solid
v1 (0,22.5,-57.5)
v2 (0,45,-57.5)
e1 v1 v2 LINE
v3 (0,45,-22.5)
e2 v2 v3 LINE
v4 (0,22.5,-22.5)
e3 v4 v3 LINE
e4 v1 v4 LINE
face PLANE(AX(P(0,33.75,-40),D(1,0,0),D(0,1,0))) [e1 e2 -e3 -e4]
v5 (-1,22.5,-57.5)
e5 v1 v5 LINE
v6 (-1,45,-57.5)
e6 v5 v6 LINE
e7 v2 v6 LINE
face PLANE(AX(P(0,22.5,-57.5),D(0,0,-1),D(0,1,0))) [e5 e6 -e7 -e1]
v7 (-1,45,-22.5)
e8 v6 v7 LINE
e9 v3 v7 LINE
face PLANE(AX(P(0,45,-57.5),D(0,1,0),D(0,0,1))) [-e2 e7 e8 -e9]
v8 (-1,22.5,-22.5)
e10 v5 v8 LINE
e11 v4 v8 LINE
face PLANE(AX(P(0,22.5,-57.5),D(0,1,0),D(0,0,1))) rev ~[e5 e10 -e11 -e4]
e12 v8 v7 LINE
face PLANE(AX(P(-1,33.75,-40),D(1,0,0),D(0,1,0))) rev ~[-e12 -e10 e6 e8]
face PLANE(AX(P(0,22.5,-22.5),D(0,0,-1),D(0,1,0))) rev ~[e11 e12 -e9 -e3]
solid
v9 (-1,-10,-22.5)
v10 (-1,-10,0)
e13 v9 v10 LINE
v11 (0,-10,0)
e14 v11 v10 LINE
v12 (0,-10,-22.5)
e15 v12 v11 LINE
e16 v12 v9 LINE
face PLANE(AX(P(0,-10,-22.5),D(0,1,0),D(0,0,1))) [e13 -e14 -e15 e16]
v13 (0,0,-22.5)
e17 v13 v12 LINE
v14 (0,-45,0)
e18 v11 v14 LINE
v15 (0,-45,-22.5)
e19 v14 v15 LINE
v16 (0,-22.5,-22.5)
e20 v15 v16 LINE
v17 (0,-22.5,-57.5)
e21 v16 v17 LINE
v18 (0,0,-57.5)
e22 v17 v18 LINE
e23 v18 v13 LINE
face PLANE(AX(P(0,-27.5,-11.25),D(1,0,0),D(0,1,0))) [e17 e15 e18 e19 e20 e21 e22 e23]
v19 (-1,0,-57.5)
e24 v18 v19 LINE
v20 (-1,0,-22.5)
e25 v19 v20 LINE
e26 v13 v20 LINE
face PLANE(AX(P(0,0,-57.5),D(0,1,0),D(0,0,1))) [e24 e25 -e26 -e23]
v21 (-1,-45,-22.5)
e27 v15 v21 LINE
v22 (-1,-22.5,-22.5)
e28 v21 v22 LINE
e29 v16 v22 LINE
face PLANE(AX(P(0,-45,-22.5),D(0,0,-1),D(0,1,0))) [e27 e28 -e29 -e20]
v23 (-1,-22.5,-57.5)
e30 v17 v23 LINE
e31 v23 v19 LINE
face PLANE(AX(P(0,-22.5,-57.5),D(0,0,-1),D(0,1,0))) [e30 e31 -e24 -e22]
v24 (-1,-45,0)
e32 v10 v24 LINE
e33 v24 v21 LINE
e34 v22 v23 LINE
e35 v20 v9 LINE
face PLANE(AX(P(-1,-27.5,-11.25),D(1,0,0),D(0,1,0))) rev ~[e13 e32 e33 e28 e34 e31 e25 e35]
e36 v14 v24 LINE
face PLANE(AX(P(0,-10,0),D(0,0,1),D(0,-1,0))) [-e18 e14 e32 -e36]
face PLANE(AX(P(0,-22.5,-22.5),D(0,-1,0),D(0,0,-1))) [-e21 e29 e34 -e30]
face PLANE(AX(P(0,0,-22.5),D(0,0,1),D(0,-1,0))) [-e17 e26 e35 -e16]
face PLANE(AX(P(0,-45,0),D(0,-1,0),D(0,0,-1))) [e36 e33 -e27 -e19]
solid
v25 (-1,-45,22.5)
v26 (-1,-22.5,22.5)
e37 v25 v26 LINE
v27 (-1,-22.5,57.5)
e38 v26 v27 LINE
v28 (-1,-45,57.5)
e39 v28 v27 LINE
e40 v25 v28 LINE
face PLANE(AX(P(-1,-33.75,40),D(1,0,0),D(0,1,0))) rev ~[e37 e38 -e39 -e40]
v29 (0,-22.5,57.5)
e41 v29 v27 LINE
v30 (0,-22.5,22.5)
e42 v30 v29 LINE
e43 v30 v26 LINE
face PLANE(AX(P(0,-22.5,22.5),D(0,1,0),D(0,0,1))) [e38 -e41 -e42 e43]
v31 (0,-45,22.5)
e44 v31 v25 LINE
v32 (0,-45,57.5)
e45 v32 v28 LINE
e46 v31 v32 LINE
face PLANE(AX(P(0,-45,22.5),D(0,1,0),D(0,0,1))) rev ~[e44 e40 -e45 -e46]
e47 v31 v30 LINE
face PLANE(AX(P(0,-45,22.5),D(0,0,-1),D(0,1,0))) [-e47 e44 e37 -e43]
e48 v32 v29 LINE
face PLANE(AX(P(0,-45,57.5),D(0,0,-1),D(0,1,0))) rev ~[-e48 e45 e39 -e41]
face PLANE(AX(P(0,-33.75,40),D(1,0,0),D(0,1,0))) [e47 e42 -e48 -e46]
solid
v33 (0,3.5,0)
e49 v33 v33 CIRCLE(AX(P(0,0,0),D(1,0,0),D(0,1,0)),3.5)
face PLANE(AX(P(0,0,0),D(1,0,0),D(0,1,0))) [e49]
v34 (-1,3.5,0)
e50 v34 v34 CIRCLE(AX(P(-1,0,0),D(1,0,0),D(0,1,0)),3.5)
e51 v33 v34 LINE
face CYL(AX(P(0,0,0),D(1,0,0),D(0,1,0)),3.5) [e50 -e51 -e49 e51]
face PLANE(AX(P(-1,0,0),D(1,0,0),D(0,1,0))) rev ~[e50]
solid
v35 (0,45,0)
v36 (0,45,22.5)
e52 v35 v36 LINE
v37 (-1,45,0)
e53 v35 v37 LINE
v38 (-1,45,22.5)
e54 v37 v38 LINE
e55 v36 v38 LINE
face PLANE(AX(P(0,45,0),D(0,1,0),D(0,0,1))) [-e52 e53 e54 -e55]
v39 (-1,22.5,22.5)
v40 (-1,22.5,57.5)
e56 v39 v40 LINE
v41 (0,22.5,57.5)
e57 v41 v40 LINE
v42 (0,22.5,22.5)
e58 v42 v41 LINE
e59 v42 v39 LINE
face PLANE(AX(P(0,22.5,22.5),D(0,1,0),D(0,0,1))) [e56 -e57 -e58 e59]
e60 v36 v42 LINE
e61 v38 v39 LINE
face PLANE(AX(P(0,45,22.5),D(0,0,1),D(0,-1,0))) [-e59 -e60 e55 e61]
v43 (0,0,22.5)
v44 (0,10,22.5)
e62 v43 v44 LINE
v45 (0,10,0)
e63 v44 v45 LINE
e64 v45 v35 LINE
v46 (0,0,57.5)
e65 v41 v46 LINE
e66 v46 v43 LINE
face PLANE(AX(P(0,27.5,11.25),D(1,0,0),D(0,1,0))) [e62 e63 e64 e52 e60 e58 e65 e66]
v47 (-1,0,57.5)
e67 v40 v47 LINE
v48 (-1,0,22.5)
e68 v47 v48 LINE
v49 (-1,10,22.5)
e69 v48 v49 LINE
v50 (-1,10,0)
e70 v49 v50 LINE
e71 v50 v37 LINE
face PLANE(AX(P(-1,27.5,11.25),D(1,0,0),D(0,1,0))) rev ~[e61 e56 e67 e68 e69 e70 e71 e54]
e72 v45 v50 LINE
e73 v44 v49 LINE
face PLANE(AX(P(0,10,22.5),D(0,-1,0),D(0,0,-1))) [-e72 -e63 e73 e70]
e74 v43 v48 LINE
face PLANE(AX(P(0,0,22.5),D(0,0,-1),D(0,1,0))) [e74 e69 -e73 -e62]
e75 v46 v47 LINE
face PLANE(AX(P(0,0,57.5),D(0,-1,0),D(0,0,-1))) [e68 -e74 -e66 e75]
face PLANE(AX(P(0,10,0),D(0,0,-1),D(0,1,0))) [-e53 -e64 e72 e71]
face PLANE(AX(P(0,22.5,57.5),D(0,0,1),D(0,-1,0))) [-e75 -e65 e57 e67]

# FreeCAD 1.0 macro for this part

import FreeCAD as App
import Part
import Sketcher
from FreeCAD import Vector
Q = App.Units.Quantity


def add_polygon(sketch, points):
    """Adds a closed chain of lines whose ends are joined by coincident constraints."""
    first, n = sketch.GeometryCount, len(points)
    for a, b in zip(points, points[1:] + points[:1]):
        sketch.addGeometry(Part.LineSegment(App.Vector(*a, 0), App.Vector(*b, 0)), False)
    for i in range(n):
        sketch.addConstraint(Sketcher.Constraint("Coincident", first + i, 2, first + (i + 1) % n, 1))

doc = App.newDocument("Part")
body = doc.addObject("PartDesign::Body", "Body")
body.AllowCompound = True

sketch1 = doc.addObject("Sketcher::SketchObject", "Sketch")
body.addObject(sketch1)
sketch1.AttachmentSupport = (doc.YZ_Plane, [""])
sketch1.MapMode = "FlatFace"
add_polygon(sketch1, [(-45, 57.5), (-45, 22.5), (-22.5, 22.5), (-22.5, 57.5)])
add_polygon(sketch1, [(-10, 0), (-45, 0), (-45, -22.5), (-22.5, -22.5), (-22.5, -57.5), (0, -57.5), (0, -22.5), (-10, -22.5)])
add_polygon(sketch1, [(22.5, -22.5), (22.5, -57.5), (45, -57.5), (45, -22.5)])
sketch1.addGeometry(Part.Circle(Vector(0, 0, 0), Vector(0, 0, 1), 3.5), False)
add_polygon(sketch1, [(45, 22.5), (22.5, 22.5), (22.5, 57.5), (0, 57.5), (0, 22.5), (10, 22.5), (10, 0), (45, 0)])
sketch1.addConstraint([
    Sketcher.Constraint("Vertical", 0),
    Sketcher.Constraint("Horizontal", 1),
    Sketcher.Constraint("Vertical", 2),
    Sketcher.Constraint("Horizontal", 3),
    Sketcher.Constraint("Horizontal", 4),
    Sketcher.Constraint("Vertical", 5),
    Sketcher.Constraint("Horizontal", 6),
    Sketcher.Constraint("Vertical", 7),
    Sketcher.Constraint("Horizontal", 8),
    Sketcher.Constraint("Vertical", 9),
    Sketcher.Constraint("Horizontal", 10),
    Sketcher.Constraint("Vertical", 11),
    Sketcher.Constraint("Vertical", 12),
    Sketcher.Constraint("Horizontal", 13),
    Sketcher.Constraint("Vertical", 14),
    Sketcher.Constraint("Horizontal", 15),
    Sketcher.Constraint("Horizontal", 17),
    Sketcher.Constraint("Vertical", 18),
    Sketcher.Constraint("Horizontal", 19),
    Sketcher.Constraint("Vertical", 20),
    Sketcher.Constraint("Horizontal", 21),
    Sketcher.Constraint("Vertical", 22),
    Sketcher.Constraint("Horizontal", 23),
    Sketcher.Constraint("Vertical", 24),
    Sketcher.Constraint("Coincident", 16, 3, -1, 1),
    Sketcher.Constraint("Symmetric", 2, 2, 12, 2, -1, 1),
    Sketcher.Constraint("Symmetric", 0, 2, 14, 2, -1, 1),
    Sketcher.Constraint("Symmetric", 6, 2, 17, 2, -1, 1),
    Sketcher.Constraint("Symmetric", 8, 2, 19, 2, -1, 1),
    Sketcher.Constraint("Symmetric", 10, 2, 21, 2, -1, 1),
    Sketcher.Constraint("Symmetric", 4, 2, 23, 2, -1, 1),
    Sketcher.Constraint("Symmetric", 7, 2, 12, 2, -2),
    Sketcher.Constraint("Symmetric", 5, 2, 14, 2, -2),
    Sketcher.Constraint("PointOnObject", 4, 2, -1),
    Sketcher.Constraint("PointOnObject", 8, 2, -2),
    Sketcher.Constraint("Horizontal", 6, 2, 9, 2),
    Sketcher.Constraint("Equal", 6, 8),
    Sketcher.Constraint("Equal", 23, 0),
    Sketcher.Constraint("Equal", 19, 5),
    Sketcher.Constraint("Diameter", 16, Q("7 mm")),
    Sketcher.Constraint("DistanceX", 4, 2, 4, 1, Q("35 mm")),
    Sketcher.Constraint("DistanceX", 10, 2, 10, 1, Q("10 mm")),
])
pad1 = doc.addObject("PartDesign::Pad", "Pad")
body.addObject(pad1)
pad1.Profile = sketch1
pad1.Length = 1
pad1.Reversed = True

doc.recompute()
